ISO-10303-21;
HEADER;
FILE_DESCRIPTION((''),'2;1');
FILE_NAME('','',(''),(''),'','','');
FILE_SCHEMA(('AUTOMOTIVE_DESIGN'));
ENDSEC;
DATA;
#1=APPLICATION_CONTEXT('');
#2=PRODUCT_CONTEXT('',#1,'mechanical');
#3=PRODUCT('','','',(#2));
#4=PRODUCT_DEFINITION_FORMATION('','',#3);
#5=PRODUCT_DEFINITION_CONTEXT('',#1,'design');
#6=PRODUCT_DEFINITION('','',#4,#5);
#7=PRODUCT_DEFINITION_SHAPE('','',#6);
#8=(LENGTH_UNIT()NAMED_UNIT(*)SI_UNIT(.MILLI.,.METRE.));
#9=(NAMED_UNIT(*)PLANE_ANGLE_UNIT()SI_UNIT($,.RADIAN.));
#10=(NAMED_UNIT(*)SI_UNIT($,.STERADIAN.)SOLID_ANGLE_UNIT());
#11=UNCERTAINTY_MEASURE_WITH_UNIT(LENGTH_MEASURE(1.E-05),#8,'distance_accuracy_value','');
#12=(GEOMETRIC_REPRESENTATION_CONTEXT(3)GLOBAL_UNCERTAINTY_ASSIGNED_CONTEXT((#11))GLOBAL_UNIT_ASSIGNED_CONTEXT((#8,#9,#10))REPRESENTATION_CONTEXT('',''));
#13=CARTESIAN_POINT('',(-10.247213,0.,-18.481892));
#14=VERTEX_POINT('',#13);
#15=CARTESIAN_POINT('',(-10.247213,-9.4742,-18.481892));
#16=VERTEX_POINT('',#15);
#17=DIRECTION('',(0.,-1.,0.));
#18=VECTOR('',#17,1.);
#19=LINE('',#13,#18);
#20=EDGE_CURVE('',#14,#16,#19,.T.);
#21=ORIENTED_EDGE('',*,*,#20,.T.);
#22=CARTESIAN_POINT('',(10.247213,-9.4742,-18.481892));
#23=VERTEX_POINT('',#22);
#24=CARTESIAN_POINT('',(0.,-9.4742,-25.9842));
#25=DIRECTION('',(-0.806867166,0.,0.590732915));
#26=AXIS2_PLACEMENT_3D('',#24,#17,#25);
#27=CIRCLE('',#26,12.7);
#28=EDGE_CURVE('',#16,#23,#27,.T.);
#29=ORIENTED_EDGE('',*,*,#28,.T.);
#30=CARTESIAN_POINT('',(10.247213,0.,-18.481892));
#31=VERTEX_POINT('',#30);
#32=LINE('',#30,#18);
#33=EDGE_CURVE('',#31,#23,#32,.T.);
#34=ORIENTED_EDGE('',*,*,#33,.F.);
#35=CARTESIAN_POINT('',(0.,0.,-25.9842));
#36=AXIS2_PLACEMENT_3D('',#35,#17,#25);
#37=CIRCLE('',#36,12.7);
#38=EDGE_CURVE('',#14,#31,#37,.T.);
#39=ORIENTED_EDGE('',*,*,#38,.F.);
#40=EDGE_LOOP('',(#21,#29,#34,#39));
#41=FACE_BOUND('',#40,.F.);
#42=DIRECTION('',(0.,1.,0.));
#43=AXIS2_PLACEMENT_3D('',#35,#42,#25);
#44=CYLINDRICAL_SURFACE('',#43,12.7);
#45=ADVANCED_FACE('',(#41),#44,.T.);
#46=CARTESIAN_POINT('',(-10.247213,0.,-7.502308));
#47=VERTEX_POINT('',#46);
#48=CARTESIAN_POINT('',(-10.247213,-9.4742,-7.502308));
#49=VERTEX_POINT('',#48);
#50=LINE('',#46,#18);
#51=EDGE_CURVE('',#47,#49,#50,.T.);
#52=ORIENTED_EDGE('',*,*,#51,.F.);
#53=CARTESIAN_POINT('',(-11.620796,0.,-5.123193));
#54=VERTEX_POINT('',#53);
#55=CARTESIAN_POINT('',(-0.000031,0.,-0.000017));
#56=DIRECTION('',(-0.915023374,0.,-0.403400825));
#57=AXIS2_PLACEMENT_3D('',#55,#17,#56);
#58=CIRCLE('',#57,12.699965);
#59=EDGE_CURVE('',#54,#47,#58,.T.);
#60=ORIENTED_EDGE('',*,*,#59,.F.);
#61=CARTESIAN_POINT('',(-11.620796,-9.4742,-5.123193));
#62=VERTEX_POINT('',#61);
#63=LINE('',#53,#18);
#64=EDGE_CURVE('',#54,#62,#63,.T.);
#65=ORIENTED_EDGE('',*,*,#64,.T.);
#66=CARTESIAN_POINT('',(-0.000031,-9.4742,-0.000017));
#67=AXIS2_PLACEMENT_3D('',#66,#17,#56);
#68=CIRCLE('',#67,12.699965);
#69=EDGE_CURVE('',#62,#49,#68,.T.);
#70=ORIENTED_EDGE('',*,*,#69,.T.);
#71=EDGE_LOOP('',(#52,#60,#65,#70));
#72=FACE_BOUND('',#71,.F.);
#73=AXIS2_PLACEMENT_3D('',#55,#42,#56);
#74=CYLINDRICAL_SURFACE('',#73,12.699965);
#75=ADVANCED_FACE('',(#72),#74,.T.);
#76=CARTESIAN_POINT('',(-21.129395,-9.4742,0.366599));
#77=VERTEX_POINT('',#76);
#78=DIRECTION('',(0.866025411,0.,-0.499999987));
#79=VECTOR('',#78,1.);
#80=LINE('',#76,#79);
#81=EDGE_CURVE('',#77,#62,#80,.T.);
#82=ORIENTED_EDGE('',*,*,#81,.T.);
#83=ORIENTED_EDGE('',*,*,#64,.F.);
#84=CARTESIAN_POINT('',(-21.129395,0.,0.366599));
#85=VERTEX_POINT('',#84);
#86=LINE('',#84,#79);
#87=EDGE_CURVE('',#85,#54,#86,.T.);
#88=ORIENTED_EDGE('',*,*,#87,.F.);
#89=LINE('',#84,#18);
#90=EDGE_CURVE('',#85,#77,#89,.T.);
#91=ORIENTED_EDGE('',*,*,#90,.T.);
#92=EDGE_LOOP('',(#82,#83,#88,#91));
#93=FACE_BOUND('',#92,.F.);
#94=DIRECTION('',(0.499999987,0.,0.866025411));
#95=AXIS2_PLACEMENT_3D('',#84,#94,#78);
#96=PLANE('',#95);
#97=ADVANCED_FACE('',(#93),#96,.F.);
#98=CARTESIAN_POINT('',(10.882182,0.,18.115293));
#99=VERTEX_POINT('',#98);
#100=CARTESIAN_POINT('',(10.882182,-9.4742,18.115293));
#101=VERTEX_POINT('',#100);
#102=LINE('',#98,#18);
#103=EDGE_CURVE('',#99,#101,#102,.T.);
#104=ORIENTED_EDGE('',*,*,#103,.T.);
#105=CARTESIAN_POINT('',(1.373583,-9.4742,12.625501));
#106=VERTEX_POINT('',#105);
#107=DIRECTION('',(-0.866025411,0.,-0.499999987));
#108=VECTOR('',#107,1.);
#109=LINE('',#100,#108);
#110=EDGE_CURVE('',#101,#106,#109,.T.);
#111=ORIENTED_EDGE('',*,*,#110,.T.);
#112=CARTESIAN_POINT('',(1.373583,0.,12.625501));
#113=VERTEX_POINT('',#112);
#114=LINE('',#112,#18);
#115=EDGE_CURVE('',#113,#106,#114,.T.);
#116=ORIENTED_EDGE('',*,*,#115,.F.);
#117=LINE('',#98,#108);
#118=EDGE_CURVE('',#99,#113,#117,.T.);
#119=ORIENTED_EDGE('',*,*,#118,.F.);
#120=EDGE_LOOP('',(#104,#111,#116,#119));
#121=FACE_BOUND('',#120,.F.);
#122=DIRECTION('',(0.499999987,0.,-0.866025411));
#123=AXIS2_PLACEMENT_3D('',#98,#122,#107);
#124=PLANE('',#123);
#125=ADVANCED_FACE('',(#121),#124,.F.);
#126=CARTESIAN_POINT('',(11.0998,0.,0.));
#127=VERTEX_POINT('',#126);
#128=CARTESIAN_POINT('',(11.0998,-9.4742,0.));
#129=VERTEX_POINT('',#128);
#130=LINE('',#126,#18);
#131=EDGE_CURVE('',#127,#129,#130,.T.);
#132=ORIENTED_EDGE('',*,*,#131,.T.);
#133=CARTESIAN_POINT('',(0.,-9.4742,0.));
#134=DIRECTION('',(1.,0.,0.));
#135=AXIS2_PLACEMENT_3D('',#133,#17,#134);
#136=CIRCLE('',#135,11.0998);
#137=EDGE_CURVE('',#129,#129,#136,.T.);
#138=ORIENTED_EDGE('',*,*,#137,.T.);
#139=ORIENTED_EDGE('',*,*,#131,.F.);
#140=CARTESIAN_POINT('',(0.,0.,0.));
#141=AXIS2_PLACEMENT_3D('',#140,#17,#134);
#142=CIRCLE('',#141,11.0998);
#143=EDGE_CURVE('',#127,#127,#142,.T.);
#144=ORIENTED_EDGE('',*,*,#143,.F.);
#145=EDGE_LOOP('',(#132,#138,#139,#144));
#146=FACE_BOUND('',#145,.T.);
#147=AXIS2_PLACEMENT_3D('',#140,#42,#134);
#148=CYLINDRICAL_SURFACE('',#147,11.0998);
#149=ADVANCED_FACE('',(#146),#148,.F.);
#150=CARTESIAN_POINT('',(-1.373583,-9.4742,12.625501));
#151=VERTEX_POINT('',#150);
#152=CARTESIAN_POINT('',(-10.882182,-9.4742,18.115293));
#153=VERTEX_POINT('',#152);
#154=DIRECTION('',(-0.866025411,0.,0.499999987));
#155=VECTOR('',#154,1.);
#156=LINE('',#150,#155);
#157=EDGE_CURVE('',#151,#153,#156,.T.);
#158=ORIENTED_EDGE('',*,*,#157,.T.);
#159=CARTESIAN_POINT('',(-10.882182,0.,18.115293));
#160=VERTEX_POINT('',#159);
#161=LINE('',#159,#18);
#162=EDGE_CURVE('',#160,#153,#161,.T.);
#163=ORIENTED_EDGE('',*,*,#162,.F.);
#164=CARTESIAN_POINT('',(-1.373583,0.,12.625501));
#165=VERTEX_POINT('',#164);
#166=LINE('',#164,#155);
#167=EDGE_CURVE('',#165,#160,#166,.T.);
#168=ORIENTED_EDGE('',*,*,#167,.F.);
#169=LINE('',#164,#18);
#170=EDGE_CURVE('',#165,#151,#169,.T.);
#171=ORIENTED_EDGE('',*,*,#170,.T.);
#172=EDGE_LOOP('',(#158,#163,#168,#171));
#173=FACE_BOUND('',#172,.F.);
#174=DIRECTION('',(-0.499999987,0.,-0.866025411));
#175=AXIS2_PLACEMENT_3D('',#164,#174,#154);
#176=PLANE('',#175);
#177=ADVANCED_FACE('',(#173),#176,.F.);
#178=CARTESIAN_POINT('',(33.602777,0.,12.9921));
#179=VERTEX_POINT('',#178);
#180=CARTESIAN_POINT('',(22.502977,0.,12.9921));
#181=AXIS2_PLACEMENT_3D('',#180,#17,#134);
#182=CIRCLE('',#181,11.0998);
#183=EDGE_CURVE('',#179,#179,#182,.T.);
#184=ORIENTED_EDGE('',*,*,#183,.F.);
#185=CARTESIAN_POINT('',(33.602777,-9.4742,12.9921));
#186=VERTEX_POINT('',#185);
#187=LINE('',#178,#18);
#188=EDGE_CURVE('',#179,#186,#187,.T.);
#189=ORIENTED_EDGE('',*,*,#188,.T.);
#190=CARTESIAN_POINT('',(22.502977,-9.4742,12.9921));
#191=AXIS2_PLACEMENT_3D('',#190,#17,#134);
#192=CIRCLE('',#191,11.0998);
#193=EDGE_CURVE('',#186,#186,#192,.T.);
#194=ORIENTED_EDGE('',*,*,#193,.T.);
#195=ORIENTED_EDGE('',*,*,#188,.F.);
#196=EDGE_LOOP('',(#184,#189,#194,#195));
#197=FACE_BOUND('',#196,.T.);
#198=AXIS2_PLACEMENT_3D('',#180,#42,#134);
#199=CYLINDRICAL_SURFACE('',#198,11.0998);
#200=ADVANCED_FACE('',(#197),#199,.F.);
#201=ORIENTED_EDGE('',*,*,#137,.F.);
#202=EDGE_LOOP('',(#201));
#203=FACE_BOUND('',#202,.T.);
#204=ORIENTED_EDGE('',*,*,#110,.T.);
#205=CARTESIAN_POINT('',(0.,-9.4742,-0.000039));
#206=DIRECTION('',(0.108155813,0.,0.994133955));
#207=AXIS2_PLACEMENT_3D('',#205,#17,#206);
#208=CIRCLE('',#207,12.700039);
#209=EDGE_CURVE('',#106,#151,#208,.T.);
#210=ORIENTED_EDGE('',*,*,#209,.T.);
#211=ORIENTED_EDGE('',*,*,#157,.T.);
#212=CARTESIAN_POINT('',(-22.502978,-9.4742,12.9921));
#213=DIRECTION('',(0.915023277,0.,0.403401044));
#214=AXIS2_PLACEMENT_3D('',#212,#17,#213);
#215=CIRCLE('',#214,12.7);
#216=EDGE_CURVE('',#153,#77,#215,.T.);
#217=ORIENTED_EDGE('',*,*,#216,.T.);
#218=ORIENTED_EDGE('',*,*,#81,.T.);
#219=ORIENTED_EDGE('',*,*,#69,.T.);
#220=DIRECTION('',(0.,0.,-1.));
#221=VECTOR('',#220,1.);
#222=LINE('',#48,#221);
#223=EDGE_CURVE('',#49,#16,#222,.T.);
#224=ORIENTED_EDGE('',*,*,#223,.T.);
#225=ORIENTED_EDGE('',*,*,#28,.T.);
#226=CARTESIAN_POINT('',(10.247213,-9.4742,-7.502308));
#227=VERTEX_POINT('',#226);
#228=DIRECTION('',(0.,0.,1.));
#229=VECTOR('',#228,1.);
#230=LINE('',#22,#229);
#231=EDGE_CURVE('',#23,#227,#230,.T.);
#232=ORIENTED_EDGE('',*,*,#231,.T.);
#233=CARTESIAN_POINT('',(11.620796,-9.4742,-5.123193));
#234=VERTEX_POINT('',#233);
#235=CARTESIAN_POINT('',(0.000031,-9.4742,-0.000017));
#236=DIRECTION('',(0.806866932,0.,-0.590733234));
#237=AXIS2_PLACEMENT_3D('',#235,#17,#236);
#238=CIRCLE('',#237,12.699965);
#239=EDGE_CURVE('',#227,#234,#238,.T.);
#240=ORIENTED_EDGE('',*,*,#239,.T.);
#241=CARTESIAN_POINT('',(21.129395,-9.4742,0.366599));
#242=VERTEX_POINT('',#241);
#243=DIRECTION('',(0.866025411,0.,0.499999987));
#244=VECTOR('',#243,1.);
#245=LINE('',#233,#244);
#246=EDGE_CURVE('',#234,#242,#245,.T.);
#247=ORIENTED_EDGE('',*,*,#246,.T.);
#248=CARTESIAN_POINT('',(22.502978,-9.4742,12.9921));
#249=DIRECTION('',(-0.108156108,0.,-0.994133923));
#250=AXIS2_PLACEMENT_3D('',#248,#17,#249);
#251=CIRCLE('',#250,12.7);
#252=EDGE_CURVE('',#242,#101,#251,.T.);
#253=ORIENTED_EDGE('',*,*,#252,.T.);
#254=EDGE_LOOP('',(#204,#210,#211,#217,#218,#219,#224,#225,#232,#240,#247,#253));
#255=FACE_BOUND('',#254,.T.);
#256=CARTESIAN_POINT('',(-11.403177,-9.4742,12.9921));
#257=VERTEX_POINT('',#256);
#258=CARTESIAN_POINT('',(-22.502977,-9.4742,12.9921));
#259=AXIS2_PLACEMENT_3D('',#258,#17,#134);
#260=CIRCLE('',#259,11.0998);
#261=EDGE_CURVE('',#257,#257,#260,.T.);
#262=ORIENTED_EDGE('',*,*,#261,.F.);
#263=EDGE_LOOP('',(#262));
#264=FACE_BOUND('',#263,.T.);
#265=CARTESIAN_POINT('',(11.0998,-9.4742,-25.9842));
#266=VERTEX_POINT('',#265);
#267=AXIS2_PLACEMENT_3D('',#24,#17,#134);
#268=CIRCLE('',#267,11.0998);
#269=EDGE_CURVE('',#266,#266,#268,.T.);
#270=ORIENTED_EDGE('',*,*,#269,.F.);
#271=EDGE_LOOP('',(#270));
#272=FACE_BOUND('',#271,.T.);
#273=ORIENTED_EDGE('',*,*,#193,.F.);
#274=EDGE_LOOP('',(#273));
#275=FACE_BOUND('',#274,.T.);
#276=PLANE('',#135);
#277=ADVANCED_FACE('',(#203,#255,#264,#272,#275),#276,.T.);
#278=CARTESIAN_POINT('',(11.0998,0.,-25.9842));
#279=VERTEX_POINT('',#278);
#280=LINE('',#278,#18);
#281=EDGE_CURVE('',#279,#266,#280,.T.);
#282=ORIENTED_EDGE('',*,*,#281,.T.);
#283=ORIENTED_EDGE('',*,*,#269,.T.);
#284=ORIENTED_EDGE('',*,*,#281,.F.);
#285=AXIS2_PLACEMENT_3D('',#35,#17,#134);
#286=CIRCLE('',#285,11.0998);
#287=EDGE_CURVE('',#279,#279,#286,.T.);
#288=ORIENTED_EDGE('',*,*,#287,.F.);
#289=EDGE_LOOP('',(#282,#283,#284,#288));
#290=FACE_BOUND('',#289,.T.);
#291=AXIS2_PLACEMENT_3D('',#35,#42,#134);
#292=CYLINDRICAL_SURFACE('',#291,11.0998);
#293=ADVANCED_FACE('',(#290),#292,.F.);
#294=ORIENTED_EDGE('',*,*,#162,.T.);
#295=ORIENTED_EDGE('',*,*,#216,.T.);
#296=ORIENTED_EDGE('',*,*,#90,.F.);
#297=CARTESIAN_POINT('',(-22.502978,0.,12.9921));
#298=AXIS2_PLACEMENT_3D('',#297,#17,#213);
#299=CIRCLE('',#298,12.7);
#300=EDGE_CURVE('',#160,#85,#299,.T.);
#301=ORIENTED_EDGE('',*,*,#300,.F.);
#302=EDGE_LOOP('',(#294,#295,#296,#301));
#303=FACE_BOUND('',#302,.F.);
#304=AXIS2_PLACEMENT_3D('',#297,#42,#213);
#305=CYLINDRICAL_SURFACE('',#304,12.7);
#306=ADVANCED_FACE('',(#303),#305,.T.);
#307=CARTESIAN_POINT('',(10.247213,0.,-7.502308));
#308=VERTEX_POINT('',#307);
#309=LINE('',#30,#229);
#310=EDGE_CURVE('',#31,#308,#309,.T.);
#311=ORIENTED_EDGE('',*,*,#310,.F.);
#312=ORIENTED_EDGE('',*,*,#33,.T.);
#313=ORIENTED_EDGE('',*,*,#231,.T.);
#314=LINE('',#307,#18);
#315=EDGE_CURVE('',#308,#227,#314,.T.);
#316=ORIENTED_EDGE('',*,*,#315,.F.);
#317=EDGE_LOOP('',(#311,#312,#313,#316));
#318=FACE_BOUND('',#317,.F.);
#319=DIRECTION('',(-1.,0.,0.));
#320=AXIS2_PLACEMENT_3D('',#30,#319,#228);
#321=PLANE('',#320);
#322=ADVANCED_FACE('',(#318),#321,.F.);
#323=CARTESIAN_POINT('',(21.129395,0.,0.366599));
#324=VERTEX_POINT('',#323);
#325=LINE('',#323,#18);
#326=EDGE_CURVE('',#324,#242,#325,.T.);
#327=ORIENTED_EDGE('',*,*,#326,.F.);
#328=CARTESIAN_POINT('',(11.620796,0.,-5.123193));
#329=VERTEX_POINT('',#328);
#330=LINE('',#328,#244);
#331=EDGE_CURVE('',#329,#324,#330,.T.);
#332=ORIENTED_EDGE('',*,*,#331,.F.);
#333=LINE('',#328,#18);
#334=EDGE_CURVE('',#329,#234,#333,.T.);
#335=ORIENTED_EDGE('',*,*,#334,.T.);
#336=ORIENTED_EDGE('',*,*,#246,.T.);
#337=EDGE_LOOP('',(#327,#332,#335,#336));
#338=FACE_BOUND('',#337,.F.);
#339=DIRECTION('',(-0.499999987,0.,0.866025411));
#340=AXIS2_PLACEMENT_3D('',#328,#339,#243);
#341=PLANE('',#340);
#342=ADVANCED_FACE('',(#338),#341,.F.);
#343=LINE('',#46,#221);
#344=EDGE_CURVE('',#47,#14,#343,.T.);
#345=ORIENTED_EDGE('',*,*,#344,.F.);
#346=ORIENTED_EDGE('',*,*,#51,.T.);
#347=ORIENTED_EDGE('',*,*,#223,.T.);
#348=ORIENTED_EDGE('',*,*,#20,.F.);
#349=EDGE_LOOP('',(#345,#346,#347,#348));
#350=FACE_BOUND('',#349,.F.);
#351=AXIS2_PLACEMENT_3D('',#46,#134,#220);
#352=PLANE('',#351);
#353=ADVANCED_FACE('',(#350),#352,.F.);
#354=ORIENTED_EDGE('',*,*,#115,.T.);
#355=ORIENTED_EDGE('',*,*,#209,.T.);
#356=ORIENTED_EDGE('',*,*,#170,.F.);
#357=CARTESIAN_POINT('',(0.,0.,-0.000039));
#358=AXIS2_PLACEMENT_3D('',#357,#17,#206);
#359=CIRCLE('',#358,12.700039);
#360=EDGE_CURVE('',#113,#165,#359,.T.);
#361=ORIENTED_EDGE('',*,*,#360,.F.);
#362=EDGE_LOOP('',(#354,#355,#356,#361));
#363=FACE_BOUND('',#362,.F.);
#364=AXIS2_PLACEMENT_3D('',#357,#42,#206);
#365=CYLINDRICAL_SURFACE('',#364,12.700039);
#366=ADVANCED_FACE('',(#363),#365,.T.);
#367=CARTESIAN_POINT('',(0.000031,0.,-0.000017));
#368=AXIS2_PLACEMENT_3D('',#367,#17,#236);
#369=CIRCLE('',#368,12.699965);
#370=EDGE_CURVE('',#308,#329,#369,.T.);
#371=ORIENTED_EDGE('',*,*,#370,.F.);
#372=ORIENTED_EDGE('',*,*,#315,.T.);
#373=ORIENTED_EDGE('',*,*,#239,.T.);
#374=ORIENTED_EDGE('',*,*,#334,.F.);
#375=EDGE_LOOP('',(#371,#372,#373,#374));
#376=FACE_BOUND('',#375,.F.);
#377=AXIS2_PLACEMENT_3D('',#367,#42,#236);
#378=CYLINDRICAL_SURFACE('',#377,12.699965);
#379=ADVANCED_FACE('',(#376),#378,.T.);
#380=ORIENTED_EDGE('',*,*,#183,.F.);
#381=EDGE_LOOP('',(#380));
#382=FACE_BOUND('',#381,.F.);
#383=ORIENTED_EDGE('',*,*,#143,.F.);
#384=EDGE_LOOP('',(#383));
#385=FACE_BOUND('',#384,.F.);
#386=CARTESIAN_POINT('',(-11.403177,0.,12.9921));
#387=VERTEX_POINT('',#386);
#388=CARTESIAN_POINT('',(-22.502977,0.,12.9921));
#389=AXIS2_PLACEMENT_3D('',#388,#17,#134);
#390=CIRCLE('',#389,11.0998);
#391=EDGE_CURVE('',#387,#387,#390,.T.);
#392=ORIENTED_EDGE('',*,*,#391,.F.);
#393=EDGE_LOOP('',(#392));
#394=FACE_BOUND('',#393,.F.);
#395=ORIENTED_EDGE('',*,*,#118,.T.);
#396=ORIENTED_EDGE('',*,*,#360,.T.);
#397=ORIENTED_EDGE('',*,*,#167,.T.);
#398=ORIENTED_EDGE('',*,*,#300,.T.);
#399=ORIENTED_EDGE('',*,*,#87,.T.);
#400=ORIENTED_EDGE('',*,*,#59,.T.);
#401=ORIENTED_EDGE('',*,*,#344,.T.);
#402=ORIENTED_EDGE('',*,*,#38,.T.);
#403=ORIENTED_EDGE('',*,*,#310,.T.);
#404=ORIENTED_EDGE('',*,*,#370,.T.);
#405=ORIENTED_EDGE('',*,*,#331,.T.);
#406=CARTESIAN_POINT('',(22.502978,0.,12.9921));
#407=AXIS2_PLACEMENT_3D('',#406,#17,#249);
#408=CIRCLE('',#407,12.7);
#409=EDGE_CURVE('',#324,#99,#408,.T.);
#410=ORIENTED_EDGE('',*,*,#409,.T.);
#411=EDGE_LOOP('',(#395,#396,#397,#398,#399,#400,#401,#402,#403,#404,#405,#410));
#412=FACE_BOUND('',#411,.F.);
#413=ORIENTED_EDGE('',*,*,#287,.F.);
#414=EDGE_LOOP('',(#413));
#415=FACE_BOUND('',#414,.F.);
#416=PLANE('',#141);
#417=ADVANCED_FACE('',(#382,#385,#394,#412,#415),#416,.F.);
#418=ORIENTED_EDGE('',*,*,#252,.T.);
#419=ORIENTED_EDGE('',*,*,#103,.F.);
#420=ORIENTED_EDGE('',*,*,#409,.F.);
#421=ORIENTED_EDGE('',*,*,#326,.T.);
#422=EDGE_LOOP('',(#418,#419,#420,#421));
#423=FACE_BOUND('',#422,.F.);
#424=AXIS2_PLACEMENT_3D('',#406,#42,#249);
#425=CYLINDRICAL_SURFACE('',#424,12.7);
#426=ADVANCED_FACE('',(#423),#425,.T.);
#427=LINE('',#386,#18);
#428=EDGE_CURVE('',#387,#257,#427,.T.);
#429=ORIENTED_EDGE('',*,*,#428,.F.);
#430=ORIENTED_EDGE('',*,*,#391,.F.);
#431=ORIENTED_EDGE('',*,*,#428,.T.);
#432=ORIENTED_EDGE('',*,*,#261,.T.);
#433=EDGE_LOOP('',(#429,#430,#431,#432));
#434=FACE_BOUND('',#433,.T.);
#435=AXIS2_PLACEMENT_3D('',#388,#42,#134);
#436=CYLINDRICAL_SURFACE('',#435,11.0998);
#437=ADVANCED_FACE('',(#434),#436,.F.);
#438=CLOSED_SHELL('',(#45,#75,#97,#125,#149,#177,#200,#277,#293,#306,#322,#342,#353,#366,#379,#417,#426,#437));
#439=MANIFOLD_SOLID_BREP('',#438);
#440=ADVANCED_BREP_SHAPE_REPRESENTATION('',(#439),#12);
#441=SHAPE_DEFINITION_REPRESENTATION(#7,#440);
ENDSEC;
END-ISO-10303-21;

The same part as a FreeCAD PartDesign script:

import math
import FreeCAD as App
import Part
import Sketcher

V = App.Vector
Q = App.Units.Quantity

doc = App.newDocument("Part")
body = doc.addObject("PartDesign::Body", "Body")

sketch1 = body.newObject("Sketcher::SketchObject", "Sketch")
sketch1.AttachmentSupport = (doc.getObject("XZ_Plane"), [""])
sketch1.MapMode = "FlatFace"
sketch1.addGeometry(Part.LineSegment(V(10.247213, -18.481892, 0), V(10.247213, -7.502308, 0)), False)
sketch1.addGeometry(Part.ArcOfCircle(Part.Circle(V(0.000031, -0.000017, 0), V(0, 0, 1), 12.699965), math.radians(-36.209058), math.radians(-23.790953)), False)
sketch1.addGeometry(Part.LineSegment(V(11.620796, -5.123193, 0), V(21.129395, 0.366599, 0)), False)
sketch1.addGeometry(Part.ArcOfCircle(Part.Circle(V(22.502978, 12.9921, 0), V(0, 0, 1), 12.7), math.radians(-96.209034), math.radians(156.209033)), False)
sketch1.addGeometry(Part.LineSegment(V(10.882182, 18.115293, 0), V(1.373583, 12.625501, 0)), False)
sketch1.addGeometry(Part.ArcOfCircle(Part.Circle(V(0, -0.000039, 0), V(0, 0, 1), 12.700039), math.radians(83.790983), math.radians(96.209017)), False)
sketch1.addGeometry(Part.LineSegment(V(-1.373583, 12.625501, 0), V(-10.882182, 18.115293, 0)), False)
sketch1.addGeometry(Part.ArcOfCircle(Part.Circle(V(-22.502978, 12.9921, 0), V(0, 0, 1), 12.7), math.radians(23.790967), math.radians(276.209034)), False)
sketch1.addGeometry(Part.LineSegment(V(-21.129395, 0.366599, 0), V(-11.620796, -5.123193, 0)), False)
sketch1.addGeometry(Part.ArcOfCircle(Part.Circle(V(-0.000031, -0.000017, 0), V(0, 0, 1), 12.699965), math.radians(-156.209047), math.radians(-143.790942)), False)
sketch1.addGeometry(Part.LineSegment(V(-10.247213, -7.502308, 0), V(-10.247213, -18.481892, 0)), False)
sketch1.addGeometry(Part.ArcOfCircle(Part.Circle(V(0, -25.9842, 0), V(0, 0, 1), 12.7), math.radians(143.790965), math.radians(396.209035)), False)
sketch1.addGeometry(Part.Circle(V(0, -25.9842, 0), V(0, 0, 1), 11.0998), False)
sketch1.addGeometry(Part.Circle(V(-22.502977, 12.9921, 0), V(0, 0, 1), 11.0998), False)
sketch1.addGeometry(Part.Circle(V(0, 0, 0), V(0, 0, 1), 11.0998), False)
sketch1.addGeometry(Part.Circle(V(22.502977, 12.9921, 0), V(0, 0, 1), 11.0998), False)
sketch1.addConstraint(Sketcher.Constraint("Coincident", 0, 2, 1, 1))
sketch1.addConstraint(Sketcher.Constraint("Coincident", 1, 2, 2, 1))
sketch1.addConstraint(Sketcher.Constraint("Coincident", 2, 2, 3, 1))
sketch1.addConstraint(Sketcher.Constraint("Coincident", 3, 2, 4, 1))
sketch1.addConstraint(Sketcher.Constraint("Coincident", 4, 2, 5, 1))
sketch1.addConstraint(Sketcher.Constraint("Coincident", 5, 2, 6, 1))
sketch1.addConstraint(Sketcher.Constraint("Coincident", 6, 2, 7, 1))
sketch1.addConstraint(Sketcher.Constraint("Coincident", 7, 2, 8, 1))
sketch1.addConstraint(Sketcher.Constraint("Coincident", 8, 2, 9, 1))
sketch1.addConstraint(Sketcher.Constraint("Coincident", 9, 2, 10, 1))
sketch1.addConstraint(Sketcher.Constraint("Coincident", 10, 2, 11, 1))
sketch1.addConstraint(Sketcher.Constraint("Coincident", 11, 2, 0, 1))
sketch1.addConstraint(Sketcher.Constraint("Vertical", 0))
sketch1.addConstraint(Sketcher.Constraint("Vertical", 10))
sketch1.addConstraint(Sketcher.Constraint("Coincident", 14, 3, -1, 1))
sketch1.addConstraint(Sketcher.Constraint("Coincident", 12, 3, 11, 3))
sketch1.addConstraint(Sketcher.Constraint("Coincident", 13, 3, 7, 3))
sketch1.addConstraint(Sketcher.Constraint("Coincident", 15, 3, 3, 3))
sketch1.addConstraint(Sketcher.Constraint("Equal", 3, 7))
sketch1.addConstraint(Sketcher.Constraint("Equal", 1, 9))
sketch1.addConstraint(Sketcher.Constraint("Equal", 7, 11))
sketch1.addConstraint(Sketcher.Constraint("Equal", 12, 13))
sketch1.addConstraint(Sketcher.Constraint("Equal", 13, 14))
sketch1.addConstraint(Sketcher.Constraint("Equal", 14, 15))
sketch1.addConstraint(Sketcher.Constraint("Symmetric", 3, 3, 7, 3, -2))
sketch1.addConstraint(Sketcher.Constraint("Symmetric", 1, 3, 9, 3, -2))
sketch1.addConstraint(Sketcher.Constraint("Symmetric", 4, 2, 5, 2, -2))
sketch1.addConstraint(Sketcher.Constraint("Symmetric", 10, 2, 11, 2, -2))
sketch1.addConstraint(Sketcher.Constraint("Parallel", 2, 4))
sketch1.addConstraint(Sketcher.Constraint("Parallel", 6, 8))
sketch1.addConstraint(Sketcher.Constraint("Horizontal", 3, 2, 6, 2))
sketch1.addConstraint(Sketcher.Constraint("Horizontal", 2, 2, 7, 2))
sketch1.addConstraint(Sketcher.Constraint("Equal", 2, 4))
sketch1.addConstraint(Sketcher.Constraint("Radius", 3, Q("0.5 in")))
sketch1.addConstraint(Sketcher.Constraint("Diameter", 12, Q("0.874 in")))
sketch1.addConstraint(Sketcher.Constraint("Angle", 2, Q("29.999999 deg")))
sketch1.addConstraint(Sketcher.Constraint("DistanceY", 11, 3, -1, 1, Q("1.023 in")))
sketch1.addConstraint(Sketcher.Constraint("Radius", 5, Q("12.700039 mm")))
sketch1.addConstraint(Sketcher.Constraint("DistanceY", -1, 1, 3, 3, Q("0.5115 in")))
sketch1.addConstraint(Sketcher.Constraint("Radius", 1, Q("12.699965 mm")))
sketch1.addConstraint(Sketcher.Constraint("DistanceY", 1, 2, 1, 3, Q("0.2016999 in")))
sketch1.addConstraint(Sketcher.Constraint("DistanceY", -1, 1, 2, 2, Q("0.366599 mm")))
sketch1.addConstraint(Sketcher.Constraint("DistanceY", -1, 1, 4, 2, Q("12.625501 mm")))
sketch1.addConstraint(Sketcher.Constraint("DistanceX", 1, 2, 2, 2, Q("9.508599 mm")))
sketch1.addConstraint(Sketcher.Constraint("DistanceY", 10, 2, 8, 2, Q("13.358699 mm")))
sketch1.addConstraint(Sketcher.Constraint("DistanceY", 0, 1, 0, 2, Q("10.979584 mm")))
pad1 = body.newObject("PartDesign::Pad", "Pad")
pad1.Profile = sketch1
pad1.Length = Q("0.373 in")

doc.recompute()
